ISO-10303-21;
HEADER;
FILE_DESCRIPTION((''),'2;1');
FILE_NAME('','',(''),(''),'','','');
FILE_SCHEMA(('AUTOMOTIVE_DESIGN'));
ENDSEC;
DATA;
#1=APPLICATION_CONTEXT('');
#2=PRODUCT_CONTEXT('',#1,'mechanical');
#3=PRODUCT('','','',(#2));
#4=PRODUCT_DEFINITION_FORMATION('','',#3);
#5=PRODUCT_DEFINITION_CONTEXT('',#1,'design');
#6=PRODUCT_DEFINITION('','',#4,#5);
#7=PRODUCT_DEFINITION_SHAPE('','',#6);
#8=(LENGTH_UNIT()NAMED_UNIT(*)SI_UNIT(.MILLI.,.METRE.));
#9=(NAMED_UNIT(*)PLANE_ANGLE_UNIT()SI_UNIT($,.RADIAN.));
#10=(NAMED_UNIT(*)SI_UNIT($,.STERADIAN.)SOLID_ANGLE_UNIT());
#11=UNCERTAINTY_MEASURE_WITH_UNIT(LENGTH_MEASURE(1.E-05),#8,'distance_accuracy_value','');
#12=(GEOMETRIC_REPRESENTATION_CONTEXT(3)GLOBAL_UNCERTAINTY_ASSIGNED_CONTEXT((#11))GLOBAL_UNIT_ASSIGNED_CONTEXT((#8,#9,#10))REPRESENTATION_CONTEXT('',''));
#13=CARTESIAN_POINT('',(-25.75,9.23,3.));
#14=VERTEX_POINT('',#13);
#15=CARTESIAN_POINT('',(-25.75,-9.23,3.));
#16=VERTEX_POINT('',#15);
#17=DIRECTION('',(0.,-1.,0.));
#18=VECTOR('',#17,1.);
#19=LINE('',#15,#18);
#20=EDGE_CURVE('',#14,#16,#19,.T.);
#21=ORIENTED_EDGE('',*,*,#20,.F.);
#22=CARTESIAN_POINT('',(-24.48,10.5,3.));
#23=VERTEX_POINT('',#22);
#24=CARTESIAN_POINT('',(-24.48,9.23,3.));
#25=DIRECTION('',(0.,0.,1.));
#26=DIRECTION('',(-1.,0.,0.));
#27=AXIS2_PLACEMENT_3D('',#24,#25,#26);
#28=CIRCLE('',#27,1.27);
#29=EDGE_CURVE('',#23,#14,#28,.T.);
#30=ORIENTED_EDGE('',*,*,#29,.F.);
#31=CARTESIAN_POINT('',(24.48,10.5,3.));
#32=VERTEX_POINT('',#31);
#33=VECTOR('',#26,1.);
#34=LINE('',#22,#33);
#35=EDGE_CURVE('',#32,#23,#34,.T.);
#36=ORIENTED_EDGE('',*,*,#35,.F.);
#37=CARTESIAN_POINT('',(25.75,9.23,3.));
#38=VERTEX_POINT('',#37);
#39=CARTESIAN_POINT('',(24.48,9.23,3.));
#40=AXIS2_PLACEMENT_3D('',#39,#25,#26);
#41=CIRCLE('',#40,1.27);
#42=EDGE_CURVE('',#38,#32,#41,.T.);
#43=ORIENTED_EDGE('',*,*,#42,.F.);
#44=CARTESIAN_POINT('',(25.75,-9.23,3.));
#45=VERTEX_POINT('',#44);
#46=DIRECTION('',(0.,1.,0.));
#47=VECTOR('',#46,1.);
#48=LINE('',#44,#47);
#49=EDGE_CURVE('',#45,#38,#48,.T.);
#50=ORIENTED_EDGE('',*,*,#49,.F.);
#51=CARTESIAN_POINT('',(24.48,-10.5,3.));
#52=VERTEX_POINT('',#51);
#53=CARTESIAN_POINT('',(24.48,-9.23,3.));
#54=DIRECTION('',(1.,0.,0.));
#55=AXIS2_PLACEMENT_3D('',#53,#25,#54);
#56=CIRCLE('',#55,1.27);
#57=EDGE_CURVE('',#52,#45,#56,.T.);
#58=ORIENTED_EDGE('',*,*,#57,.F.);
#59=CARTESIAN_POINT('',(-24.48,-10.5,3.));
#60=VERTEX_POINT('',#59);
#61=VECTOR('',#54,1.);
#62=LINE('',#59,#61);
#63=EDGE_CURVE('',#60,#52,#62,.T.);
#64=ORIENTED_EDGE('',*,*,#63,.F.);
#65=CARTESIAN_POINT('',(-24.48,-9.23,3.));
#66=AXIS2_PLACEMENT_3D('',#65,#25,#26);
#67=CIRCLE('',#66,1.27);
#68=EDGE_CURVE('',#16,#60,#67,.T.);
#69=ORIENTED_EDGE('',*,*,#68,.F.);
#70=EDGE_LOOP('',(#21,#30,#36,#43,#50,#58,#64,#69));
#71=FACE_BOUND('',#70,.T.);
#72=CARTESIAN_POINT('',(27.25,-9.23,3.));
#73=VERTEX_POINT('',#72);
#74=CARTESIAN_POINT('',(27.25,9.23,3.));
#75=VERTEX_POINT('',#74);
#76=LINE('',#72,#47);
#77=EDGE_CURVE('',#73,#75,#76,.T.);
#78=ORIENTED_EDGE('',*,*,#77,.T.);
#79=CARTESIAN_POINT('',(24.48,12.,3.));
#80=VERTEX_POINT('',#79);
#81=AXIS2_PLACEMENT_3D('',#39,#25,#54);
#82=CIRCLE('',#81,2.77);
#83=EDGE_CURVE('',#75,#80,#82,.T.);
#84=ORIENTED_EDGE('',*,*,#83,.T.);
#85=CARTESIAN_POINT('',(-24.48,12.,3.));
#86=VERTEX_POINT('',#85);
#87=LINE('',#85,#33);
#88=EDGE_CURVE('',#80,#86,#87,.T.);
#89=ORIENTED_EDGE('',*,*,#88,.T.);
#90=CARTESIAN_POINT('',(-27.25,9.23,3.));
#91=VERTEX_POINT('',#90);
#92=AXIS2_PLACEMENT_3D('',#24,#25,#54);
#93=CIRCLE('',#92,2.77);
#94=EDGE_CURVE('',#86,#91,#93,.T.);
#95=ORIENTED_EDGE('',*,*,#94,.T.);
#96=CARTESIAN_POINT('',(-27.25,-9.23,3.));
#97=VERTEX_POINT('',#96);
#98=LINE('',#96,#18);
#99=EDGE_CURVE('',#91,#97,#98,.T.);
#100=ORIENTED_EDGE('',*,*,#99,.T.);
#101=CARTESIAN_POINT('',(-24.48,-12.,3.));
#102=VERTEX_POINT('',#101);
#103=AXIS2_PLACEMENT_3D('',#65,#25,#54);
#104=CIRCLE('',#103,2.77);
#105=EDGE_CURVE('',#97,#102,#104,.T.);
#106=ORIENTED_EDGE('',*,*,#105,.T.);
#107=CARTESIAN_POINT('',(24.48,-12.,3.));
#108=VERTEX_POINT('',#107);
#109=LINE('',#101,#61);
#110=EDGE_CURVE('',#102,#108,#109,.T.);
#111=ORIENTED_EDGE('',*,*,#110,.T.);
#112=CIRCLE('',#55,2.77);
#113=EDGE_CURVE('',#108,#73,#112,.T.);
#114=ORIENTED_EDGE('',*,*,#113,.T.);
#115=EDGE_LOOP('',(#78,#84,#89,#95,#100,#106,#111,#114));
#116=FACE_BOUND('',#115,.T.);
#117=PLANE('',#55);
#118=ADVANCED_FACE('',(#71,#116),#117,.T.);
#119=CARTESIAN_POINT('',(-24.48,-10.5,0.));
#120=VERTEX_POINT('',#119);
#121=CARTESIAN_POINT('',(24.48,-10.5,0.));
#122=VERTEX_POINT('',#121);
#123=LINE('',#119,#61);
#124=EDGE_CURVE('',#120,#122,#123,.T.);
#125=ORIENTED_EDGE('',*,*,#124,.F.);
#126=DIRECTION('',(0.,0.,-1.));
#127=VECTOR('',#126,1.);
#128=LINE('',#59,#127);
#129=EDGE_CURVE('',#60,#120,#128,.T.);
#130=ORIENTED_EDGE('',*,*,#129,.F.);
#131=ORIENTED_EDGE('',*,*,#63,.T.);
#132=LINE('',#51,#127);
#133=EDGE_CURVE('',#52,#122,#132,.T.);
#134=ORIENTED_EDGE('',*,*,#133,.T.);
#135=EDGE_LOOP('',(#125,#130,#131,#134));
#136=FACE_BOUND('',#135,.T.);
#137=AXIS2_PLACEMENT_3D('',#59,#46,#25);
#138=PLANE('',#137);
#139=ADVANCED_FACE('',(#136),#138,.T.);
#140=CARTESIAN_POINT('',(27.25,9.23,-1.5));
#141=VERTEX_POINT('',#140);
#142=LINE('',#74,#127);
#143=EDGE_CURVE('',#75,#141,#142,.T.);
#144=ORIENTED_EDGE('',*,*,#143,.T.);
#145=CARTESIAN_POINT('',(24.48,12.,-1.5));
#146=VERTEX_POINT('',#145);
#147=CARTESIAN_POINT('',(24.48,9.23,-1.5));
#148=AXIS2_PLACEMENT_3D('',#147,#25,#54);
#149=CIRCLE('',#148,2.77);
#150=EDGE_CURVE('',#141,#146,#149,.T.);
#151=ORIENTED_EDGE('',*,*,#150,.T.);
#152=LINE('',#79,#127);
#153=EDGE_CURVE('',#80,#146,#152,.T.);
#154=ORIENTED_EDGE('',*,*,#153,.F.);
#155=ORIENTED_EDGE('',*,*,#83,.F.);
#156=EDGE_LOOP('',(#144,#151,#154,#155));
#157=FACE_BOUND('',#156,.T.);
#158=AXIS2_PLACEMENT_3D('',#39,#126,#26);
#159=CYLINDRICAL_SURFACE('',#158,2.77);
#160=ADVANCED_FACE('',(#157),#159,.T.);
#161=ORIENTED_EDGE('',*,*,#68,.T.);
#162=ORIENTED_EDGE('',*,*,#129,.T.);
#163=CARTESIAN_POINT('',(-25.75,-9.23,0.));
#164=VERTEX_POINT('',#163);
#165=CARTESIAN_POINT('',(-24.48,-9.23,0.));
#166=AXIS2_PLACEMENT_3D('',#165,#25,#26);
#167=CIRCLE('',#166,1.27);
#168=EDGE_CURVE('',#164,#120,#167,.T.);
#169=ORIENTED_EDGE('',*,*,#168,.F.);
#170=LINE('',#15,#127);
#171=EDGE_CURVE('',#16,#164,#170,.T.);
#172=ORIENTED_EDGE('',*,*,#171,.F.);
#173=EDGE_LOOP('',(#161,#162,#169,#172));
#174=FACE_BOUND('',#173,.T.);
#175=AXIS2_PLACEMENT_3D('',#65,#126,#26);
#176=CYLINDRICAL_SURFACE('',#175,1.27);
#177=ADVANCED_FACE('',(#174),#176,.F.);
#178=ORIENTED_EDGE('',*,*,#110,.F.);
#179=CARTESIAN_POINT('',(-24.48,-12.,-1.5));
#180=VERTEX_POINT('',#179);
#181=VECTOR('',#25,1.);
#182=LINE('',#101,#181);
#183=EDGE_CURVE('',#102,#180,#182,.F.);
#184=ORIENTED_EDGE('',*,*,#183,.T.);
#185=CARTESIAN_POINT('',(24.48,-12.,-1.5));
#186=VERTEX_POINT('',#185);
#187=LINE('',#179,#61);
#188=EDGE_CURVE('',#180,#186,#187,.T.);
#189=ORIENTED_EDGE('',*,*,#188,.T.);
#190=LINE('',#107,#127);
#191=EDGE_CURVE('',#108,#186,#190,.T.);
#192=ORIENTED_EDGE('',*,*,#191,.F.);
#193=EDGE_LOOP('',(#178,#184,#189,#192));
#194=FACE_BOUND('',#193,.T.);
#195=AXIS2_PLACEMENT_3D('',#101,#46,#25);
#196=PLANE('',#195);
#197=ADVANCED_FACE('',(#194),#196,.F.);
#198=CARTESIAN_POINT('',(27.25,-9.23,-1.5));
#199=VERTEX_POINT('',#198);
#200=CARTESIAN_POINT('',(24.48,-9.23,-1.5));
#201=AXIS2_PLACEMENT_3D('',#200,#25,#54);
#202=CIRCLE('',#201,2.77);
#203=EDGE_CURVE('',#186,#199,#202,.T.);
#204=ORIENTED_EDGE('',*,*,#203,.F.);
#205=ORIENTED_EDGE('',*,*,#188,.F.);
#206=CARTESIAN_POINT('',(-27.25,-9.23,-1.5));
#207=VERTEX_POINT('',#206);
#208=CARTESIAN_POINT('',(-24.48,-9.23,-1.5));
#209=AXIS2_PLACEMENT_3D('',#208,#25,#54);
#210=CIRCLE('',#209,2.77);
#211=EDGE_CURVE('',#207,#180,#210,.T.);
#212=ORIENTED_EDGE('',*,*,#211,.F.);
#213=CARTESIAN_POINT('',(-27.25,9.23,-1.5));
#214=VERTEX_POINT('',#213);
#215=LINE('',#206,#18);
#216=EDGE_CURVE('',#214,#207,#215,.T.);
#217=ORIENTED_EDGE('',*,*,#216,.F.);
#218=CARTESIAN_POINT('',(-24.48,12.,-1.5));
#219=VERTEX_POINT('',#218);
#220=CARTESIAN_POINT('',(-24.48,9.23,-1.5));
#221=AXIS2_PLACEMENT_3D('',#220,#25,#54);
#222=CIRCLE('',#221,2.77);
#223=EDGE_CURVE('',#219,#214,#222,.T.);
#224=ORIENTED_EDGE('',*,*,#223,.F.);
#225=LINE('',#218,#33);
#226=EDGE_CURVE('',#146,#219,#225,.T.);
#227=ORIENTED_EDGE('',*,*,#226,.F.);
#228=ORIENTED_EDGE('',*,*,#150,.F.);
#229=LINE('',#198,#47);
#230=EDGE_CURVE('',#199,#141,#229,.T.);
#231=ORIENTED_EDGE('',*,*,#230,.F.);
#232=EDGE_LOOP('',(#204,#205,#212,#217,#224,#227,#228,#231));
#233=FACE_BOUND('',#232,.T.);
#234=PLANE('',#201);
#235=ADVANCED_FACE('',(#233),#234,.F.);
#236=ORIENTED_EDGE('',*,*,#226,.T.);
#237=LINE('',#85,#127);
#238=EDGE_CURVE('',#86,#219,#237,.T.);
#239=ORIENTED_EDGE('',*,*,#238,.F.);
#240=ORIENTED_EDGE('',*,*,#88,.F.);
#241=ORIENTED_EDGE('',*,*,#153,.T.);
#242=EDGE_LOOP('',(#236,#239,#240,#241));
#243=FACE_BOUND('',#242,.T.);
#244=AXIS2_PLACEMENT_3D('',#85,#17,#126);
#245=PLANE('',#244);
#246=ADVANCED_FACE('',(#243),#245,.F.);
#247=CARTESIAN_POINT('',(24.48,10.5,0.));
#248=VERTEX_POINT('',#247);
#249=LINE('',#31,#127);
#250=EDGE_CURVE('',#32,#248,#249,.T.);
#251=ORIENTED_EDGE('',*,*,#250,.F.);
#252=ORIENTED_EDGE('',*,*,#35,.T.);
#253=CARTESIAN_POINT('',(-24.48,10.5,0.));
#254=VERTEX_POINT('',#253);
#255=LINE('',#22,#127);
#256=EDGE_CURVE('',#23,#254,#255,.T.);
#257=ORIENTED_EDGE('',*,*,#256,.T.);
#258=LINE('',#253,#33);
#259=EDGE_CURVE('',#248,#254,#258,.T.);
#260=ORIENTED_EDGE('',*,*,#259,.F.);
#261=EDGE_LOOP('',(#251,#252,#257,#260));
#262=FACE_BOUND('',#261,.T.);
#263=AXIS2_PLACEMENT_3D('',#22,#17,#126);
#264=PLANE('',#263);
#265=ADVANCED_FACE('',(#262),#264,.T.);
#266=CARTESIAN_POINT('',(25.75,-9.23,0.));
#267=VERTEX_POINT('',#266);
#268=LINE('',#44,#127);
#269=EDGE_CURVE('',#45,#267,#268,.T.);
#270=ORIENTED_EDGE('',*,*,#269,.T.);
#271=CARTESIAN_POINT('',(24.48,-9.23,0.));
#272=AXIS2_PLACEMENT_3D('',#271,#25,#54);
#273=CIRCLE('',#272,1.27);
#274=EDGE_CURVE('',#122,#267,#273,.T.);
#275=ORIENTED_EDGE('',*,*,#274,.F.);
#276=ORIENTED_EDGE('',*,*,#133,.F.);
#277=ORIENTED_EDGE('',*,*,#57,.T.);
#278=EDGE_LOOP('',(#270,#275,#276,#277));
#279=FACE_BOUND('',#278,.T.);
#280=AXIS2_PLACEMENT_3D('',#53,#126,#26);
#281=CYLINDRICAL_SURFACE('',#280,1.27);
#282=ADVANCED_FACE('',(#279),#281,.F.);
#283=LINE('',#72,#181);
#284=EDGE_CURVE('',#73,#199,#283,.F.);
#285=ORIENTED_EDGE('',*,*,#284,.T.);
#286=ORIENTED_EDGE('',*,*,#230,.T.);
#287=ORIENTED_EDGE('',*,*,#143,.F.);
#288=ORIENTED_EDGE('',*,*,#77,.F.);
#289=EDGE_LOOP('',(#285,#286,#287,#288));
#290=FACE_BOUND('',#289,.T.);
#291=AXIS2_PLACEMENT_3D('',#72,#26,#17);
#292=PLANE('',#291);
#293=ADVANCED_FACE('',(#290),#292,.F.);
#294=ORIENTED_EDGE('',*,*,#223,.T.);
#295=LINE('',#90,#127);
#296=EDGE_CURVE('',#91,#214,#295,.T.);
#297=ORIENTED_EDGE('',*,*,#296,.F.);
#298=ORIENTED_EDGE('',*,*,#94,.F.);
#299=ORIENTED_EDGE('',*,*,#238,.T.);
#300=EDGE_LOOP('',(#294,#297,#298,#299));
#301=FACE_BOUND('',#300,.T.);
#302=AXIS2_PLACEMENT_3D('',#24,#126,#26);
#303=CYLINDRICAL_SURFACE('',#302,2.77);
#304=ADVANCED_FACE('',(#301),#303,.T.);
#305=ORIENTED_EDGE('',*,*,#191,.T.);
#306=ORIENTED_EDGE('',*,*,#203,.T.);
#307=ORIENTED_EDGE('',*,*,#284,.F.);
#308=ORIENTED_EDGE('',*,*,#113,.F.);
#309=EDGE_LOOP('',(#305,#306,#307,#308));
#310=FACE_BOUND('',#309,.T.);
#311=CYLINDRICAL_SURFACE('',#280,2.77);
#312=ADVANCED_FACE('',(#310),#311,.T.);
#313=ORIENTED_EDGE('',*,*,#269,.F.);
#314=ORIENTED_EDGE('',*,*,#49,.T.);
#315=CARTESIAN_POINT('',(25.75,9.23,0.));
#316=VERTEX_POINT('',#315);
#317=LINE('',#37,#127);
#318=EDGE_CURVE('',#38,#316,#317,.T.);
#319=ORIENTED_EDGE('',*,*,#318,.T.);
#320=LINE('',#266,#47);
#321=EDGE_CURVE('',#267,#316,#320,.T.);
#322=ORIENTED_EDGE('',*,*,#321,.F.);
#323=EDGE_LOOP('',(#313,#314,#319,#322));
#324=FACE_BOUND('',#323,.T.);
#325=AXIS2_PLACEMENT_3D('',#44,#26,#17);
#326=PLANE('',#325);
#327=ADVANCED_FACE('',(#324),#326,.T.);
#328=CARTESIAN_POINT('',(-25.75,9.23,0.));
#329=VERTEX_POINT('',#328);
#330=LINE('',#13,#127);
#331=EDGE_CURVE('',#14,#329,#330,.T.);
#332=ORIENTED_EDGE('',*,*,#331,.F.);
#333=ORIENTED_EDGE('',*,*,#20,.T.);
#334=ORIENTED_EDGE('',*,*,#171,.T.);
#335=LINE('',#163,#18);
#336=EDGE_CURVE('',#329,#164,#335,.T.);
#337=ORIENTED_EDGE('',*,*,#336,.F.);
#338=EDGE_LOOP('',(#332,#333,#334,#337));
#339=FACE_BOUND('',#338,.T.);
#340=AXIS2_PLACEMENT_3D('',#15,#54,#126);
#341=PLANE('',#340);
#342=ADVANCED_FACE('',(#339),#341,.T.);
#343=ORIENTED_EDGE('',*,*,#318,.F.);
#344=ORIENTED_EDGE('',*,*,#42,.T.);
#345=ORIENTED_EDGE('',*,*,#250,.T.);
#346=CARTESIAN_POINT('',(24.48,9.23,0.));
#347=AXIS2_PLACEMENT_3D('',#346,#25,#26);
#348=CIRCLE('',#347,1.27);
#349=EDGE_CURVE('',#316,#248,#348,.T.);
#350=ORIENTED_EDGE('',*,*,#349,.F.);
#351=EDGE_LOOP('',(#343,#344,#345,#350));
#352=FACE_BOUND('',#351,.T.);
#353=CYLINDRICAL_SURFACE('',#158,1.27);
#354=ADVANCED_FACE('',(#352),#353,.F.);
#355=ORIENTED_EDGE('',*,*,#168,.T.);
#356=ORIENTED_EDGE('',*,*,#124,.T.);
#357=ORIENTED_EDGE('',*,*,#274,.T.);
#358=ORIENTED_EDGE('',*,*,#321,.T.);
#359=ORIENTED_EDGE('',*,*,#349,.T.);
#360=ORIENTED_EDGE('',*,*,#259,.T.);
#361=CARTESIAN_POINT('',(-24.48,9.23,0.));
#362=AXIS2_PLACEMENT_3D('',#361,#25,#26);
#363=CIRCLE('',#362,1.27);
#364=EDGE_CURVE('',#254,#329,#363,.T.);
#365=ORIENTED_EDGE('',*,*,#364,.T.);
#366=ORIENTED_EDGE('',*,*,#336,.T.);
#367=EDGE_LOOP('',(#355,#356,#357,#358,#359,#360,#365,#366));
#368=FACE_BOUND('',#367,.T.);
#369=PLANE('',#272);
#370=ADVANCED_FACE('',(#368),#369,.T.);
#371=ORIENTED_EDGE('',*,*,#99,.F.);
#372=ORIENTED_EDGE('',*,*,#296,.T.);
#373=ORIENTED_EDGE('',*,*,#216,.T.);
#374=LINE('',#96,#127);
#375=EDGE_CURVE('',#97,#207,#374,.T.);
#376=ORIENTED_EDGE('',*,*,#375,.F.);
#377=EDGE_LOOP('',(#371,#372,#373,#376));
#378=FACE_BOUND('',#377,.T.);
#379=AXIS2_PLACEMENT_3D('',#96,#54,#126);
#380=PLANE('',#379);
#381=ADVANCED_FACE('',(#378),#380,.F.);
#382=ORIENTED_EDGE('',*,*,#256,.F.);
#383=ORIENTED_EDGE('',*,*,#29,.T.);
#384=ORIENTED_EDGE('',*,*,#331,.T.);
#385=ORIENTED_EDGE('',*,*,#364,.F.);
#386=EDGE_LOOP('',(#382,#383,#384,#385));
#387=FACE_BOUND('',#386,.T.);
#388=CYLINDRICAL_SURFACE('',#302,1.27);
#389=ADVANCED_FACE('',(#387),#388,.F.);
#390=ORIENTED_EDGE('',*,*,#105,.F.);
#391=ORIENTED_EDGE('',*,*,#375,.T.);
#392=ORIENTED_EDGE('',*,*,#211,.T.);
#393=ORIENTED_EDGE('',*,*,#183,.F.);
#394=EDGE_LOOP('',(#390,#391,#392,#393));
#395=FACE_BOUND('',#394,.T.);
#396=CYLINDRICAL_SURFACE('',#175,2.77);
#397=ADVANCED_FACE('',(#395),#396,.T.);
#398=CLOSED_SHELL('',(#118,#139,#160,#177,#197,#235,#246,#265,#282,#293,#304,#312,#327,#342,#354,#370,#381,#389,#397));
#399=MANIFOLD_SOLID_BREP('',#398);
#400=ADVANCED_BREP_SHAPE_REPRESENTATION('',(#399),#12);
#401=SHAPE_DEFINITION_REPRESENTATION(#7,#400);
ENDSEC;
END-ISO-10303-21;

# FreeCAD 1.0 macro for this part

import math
import FreeCAD as App
import Part
import Sketcher

V = App.Vector


def faces_at(feature, points):
    """Names of the faces that lie closest to the given points."""
    faces = feature.Shape.Faces
    near = lambda p: min(range(len(faces)), key=lambda i: faces[i].distToShape(Part.Vertex(*p))[0])
    return sorted({f"Face{near(p) + 1}" for p in points})

doc = App.newDocument("Part")
params = doc.addObject("Spreadsheet::Sheet", "Params")
for row, (alias, value) in enumerate([
    ("sketch1_radius", "1.27 mm"),
    ("sketch1_width", "48.96 mm"),
    ("pad1_length", "3 mm"),
    ("thickness_wall", "1.5 mm"),
], start=1):
    params.set(f"A{row}", alias)
    params.set(f"B{row}", "=" + value)
    params.setAlias(f"B{row}", alias)

body = doc.addObject("PartDesign::Body", "Body")

# Sketch on XY plane
sketch1 = body.newObject("Sketcher::SketchObject", "Sketch")
sketch1.AttachmentSupport = (doc.getObject("XY_Plane"), [""])
sketch1.MapMode = "FlatFace"
sketch1.addGeometry(Part.LineSegment(V(-24.5, -10.5, 0), V(24.5, -10.5, 0)), False)
sketch1.addGeometry(Part.ArcOfCircle(Part.Circle(V(24.5, -9.2, 0), V(0, 0, 1), 1.3), math.radians(-90), math.radians(0)), False)
sketch1.addGeometry(Part.LineSegment(V(25.8, -9.2, 0), V(25.8, 9.2, 0)), False)
sketch1.addGeometry(Part.ArcOfCircle(Part.Circle(V(24.5, 9.2, 0), V(0, 0, 1), 1.3), math.radians(0), math.radians(90)), False)
sketch1.addGeometry(Part.LineSegment(V(24.5, 10.5, 0), V(-24.5, 10.5, 0)), False)
sketch1.addGeometry(Part.ArcOfCircle(Part.Circle(V(-24.5, 9.2, 0), V(0, 0, 1), 1.3), math.radians(90), math.radians(180)), False)
sketch1.addGeometry(Part.LineSegment(V(-25.8, 9.2, 0), V(-25.8, -9.2, 0)), False)
sketch1.addGeometry(Part.ArcOfCircle(Part.Circle(V(-24.5, -9.2, 0), V(0, 0, 1), 1.3), math.radians(180), math.radians(270)), False)
sketch1.addConstraint(Sketcher.Constraint("Tangent", 0, 2, 1, 1))
sketch1.addConstraint(Sketcher.Constraint("Tangent", 1, 2, 2, 1))
sketch1.addConstraint(Sketcher.Constraint("Tangent", 2, 2, 3, 1))
sketch1.addConstraint(Sketcher.Constraint("Tangent", 3, 2, 4, 1))
sketch1.addConstraint(Sketcher.Constraint("Tangent", 4, 2, 5, 1))
sketch1.addConstraint(Sketcher.Constraint("Tangent", 5, 2, 6, 1))
sketch1.addConstraint(Sketcher.Constraint("Tangent", 6, 2, 7, 1))
sketch1.addConstraint(Sketcher.Constraint("Tangent", 7, 2, 0, 1))
sketch1.addConstraint(Sketcher.Constraint("Horizontal", 0))
sketch1.addConstraint(Sketcher.Constraint("Vertical", 2))
sketch1.addConstraint(Sketcher.Constraint("Horizontal", 4))
sketch1.addConstraint(Sketcher.Constraint("Vertical", 6))
sketch1.addConstraint(Sketcher.Constraint("Equal", 1, 3))
sketch1.addConstraint(Sketcher.Constraint("Equal", 3, 5))
sketch1.addConstraint(Sketcher.Constraint("Equal", 5, 7))
sketch1.addConstraint(Sketcher.Constraint("Symmetric", 1, 3, 5, 3, -1, 1))
sketch1.addConstraint(Sketcher.Constraint("Radius", 1, 1.27))
sketch1.addConstraint(Sketcher.Constraint("DistanceY", 0, 2, 3, 2, 21.0))
sketch1.addConstraint(Sketcher.Constraint("DistanceX", 0, 1, 0, 2, 48.96))
sketch1.setExpression("Constraints[16]", "Params.sketch1_radius")
sketch1.setExpression("Constraints[18]", "Params.sketch1_width")
pad1 = body.newObject("PartDesign::Pad", "Pad")
pad1.Profile = sketch1
pad1.setExpression("Length", "Params.pad1_length")
doc.recompute()

thickness = body.newObject("PartDesign::Thickness", "Thickness")
thickness.Base = (pad1, faces_at(pad1, [(0, 0, 3)]))
thickness.setExpression("Value", "Params.thickness_wall")
thickness.Reversed = False
thickness.Join = "Intersection"

doc.recompute()
